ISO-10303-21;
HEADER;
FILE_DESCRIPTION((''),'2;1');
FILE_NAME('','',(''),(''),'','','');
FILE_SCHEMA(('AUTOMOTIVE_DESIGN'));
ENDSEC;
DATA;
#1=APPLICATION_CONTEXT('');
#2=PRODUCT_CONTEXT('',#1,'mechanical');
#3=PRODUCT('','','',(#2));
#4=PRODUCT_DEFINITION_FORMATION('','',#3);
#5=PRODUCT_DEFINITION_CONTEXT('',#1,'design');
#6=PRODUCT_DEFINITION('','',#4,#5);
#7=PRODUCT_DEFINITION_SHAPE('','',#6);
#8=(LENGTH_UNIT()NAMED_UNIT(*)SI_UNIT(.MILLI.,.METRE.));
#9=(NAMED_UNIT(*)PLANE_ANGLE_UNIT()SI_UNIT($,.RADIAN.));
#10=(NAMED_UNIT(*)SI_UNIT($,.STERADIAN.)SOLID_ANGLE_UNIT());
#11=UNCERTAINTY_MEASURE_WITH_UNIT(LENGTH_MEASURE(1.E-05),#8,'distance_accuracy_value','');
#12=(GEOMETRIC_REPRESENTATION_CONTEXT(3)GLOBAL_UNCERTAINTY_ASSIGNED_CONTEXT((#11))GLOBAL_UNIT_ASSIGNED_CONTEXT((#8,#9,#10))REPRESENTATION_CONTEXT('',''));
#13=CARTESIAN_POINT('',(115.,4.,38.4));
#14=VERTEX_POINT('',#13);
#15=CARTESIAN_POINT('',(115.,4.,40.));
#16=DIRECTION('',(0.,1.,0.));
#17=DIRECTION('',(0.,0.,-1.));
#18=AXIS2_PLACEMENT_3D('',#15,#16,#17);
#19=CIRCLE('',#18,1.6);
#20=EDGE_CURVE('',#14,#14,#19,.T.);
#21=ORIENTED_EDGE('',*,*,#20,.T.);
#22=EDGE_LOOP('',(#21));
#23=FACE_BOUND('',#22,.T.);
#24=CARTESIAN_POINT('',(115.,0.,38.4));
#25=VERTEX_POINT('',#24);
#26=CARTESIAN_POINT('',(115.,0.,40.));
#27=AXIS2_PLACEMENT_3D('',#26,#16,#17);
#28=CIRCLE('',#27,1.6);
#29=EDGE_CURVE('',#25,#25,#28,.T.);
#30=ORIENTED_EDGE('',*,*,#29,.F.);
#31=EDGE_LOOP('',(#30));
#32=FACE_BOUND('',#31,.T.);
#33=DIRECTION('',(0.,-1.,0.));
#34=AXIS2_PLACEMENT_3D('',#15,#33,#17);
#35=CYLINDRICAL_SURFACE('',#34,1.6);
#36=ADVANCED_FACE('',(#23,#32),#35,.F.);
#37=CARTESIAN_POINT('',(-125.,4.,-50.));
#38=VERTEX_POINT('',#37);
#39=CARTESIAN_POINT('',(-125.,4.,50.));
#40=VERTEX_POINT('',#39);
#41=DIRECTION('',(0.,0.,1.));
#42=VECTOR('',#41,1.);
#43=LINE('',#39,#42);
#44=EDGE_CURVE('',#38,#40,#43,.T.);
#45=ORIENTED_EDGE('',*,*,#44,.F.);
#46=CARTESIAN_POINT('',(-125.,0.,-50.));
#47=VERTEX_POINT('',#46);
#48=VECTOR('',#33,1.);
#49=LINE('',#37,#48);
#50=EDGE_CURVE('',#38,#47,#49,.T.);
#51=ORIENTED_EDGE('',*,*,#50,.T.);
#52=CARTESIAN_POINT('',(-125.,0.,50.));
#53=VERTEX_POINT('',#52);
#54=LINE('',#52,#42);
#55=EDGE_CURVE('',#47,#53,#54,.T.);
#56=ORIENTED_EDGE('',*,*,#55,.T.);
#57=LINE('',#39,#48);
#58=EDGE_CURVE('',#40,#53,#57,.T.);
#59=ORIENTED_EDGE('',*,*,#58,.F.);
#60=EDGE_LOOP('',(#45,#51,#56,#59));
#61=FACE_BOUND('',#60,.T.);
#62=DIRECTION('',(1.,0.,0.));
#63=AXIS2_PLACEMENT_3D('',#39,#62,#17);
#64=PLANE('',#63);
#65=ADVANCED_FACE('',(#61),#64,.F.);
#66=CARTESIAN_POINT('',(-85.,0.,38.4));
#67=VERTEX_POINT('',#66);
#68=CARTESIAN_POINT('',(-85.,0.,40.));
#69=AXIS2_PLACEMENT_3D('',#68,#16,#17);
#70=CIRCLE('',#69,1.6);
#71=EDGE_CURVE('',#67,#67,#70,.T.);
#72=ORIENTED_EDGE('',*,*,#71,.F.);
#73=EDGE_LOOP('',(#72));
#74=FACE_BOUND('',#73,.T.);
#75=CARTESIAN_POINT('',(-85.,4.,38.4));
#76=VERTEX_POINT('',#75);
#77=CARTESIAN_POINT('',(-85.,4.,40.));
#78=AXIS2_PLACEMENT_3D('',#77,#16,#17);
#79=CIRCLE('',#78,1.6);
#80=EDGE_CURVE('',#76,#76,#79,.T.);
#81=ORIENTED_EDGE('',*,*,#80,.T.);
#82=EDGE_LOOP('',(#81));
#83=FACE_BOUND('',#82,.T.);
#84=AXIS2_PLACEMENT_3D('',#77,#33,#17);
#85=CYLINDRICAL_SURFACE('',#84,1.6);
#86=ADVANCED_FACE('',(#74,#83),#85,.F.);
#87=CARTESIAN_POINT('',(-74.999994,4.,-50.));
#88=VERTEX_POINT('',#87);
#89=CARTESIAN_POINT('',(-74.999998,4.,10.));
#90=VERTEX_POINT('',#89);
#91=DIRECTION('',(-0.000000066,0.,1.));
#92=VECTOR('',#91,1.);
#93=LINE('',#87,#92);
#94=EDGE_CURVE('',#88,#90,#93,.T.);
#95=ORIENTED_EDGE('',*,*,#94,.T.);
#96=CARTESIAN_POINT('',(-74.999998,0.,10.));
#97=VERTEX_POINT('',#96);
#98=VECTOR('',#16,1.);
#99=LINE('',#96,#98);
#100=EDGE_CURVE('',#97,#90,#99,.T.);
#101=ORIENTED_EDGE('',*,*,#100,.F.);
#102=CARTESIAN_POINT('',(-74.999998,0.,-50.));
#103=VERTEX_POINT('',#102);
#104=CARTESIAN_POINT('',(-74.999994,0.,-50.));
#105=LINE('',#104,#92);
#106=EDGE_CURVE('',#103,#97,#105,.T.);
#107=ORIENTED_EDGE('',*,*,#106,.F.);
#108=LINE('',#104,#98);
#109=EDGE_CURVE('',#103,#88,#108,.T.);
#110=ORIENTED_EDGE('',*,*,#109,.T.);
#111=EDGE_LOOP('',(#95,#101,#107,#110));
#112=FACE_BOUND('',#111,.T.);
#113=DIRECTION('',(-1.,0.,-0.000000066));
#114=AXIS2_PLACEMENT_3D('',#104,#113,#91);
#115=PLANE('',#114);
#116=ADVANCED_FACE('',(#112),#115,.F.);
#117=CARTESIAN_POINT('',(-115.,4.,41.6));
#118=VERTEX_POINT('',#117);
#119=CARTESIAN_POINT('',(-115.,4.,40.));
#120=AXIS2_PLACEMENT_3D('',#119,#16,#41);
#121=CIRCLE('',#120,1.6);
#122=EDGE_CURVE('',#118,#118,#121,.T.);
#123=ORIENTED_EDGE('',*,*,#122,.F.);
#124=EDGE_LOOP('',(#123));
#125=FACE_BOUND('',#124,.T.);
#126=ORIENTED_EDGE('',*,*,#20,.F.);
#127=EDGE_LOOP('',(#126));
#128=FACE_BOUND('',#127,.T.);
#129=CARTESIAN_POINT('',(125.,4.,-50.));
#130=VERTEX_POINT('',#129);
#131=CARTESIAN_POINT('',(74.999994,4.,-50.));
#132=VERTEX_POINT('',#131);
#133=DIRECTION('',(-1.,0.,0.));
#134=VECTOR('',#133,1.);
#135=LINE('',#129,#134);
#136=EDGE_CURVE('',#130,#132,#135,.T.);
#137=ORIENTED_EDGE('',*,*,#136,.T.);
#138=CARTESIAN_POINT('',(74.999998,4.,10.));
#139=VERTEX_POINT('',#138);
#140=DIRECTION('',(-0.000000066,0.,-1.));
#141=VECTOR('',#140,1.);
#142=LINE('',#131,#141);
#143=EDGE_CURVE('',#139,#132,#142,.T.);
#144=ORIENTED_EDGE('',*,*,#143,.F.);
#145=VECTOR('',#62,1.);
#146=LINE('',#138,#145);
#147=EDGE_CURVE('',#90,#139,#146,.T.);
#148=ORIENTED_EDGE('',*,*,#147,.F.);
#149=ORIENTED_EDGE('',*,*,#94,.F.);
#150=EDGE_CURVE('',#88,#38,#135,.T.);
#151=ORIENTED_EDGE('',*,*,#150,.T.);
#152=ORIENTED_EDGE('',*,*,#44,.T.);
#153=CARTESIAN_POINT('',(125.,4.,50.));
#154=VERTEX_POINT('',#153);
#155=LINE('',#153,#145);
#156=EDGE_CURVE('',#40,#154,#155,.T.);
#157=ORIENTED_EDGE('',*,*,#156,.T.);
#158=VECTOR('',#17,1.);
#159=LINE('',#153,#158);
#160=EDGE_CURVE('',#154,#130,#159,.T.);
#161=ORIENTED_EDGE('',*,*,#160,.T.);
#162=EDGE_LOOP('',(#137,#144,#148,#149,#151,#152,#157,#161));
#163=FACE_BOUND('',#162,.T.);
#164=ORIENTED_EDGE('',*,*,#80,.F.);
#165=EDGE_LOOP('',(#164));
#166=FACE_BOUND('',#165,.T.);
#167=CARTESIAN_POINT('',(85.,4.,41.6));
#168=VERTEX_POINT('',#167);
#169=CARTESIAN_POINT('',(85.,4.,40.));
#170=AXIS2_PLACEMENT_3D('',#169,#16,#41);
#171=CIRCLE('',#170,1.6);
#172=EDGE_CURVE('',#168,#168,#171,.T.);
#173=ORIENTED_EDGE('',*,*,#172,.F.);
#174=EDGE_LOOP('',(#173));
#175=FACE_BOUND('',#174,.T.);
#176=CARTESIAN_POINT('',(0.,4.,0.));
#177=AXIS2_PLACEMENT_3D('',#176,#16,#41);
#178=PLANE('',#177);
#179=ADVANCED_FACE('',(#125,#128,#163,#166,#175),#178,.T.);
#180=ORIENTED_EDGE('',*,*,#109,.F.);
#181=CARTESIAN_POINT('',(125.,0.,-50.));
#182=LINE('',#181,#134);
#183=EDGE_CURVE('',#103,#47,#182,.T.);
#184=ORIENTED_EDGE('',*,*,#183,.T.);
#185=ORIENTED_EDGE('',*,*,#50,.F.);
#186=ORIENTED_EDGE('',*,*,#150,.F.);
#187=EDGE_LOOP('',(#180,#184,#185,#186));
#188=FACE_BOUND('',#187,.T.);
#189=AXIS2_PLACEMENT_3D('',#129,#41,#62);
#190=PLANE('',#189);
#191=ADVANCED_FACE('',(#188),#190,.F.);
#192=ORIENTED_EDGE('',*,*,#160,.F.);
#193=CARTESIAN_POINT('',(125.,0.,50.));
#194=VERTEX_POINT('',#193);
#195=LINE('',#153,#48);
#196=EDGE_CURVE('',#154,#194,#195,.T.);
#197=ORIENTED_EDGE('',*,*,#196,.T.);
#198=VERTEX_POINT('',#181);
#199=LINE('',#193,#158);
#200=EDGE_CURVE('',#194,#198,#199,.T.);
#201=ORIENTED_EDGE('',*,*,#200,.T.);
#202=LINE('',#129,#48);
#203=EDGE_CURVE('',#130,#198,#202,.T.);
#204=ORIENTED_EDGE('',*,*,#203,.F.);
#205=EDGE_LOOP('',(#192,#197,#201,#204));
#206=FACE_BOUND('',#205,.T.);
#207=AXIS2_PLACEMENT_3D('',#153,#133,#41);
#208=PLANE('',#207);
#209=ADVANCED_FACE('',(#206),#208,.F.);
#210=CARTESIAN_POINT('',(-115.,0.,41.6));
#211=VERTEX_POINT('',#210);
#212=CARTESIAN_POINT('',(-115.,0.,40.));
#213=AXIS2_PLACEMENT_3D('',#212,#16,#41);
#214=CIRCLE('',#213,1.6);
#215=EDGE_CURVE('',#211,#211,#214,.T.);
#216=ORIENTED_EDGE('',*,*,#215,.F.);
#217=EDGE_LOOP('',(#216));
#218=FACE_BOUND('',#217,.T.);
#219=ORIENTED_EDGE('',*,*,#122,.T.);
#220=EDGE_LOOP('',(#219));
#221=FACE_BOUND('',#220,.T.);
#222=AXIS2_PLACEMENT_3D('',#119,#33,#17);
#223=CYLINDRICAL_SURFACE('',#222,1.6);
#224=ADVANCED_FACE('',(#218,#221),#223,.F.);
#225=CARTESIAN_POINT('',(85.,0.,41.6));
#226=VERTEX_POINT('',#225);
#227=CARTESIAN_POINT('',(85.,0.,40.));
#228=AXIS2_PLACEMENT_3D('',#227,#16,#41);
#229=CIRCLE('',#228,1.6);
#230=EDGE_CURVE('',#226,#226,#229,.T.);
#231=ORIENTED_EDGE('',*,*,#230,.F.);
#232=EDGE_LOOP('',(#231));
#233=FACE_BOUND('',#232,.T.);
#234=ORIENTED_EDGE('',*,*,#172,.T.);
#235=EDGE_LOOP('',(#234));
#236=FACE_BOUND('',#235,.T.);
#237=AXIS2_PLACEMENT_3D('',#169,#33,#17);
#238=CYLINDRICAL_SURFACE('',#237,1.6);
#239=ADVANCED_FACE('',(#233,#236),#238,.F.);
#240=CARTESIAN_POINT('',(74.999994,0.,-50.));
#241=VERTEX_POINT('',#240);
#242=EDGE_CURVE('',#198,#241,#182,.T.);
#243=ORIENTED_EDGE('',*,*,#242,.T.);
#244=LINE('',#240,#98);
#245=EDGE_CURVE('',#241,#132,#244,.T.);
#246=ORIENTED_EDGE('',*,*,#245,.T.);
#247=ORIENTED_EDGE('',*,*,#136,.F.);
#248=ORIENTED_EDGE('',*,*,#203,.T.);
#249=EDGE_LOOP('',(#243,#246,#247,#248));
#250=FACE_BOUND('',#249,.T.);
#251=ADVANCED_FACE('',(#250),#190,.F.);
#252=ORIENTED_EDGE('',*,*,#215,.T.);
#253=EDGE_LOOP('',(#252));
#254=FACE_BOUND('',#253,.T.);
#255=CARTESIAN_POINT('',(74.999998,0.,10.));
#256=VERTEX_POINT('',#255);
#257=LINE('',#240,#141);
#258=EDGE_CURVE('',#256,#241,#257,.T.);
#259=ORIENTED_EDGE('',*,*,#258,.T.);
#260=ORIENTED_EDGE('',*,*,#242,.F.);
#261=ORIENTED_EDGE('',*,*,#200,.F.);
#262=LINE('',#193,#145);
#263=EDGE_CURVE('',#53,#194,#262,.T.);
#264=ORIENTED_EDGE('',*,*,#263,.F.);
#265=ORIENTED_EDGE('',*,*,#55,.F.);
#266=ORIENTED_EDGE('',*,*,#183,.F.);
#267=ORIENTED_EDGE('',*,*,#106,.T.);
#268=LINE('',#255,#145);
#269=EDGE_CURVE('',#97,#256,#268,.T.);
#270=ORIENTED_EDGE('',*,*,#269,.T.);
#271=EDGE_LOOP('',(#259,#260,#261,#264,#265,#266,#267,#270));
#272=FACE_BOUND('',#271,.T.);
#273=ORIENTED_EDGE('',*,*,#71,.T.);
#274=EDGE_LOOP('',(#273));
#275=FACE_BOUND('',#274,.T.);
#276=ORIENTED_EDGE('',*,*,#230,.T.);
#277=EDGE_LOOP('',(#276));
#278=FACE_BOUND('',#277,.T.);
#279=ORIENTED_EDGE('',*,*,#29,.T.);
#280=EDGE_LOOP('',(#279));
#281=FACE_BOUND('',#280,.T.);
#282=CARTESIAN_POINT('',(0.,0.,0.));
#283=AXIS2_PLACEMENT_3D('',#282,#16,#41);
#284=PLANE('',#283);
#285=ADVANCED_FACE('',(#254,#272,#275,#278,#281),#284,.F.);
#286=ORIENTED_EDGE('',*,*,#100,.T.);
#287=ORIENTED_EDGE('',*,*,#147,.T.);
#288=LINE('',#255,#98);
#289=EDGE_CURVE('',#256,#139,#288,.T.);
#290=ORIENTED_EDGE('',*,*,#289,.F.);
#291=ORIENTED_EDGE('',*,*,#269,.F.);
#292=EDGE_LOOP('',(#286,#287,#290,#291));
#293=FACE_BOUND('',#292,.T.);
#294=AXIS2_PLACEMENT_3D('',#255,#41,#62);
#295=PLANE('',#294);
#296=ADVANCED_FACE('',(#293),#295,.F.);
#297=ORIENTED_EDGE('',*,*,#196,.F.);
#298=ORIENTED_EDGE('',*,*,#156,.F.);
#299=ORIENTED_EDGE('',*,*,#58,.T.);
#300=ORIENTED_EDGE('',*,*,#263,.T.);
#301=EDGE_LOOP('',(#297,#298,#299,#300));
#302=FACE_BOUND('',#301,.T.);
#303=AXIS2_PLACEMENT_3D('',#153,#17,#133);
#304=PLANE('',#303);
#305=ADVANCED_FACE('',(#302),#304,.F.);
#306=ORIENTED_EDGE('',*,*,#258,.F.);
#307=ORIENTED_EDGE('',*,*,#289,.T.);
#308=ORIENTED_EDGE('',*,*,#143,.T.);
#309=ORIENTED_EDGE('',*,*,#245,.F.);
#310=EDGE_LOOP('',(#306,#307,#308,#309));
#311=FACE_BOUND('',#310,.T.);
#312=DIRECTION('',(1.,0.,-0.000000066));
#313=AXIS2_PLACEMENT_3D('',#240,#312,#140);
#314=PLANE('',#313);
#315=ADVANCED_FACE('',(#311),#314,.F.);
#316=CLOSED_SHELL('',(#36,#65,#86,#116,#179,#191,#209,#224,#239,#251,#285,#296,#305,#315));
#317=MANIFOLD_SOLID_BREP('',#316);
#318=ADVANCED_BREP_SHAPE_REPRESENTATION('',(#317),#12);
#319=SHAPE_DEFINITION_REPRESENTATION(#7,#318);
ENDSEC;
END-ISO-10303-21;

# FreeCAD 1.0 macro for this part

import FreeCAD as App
import Part
import Sketcher
Q = App.Units.Quantity


def add_polygon(sketch, points):
    """Adds a closed chain of lines whose ends are joined by coincident constraints."""
    first, n = sketch.GeometryCount, len(points)
    for a, b in zip(points, points[1:] + points[:1]):
        sketch.addGeometry(Part.LineSegment(App.Vector(*a, 0), App.Vector(*b, 0)), False)
    for i in range(n):
        sketch.addConstraint(Sketcher.Constraint("Coincident", first + i, 2, first + (i + 1) % n, 1))

doc = App.newDocument("Part")
body = doc.addObject("PartDesign::Body", "Body")

# Sketch on XZ plane
sketch1 = body.newObject("Sketcher::SketchObject", "Sketch")
sketch1.AttachmentSupport = (doc.getObject("XZ_Plane"), [""])
sketch1.MapMode = "FlatFace"
add_polygon(sketch1, [(-125, -50), (-125, 50), (125, 50), (125, -50)])  # lines 0-3
sketch1.addGeometry(Part.Circle(App.Vector(-115, 40, 0), App.Vector(0, 0, 1), 1.6), False)  # 4
sketch1.addGeometry(Part.Circle(App.Vector(-85, 40, 0), App.Vector(0, 0, 1), 1.6), False)  # 5
sketch1.addGeometry(Part.Circle(App.Vector(85, 40, 0), App.Vector(0, 0, 1), 1.6), False)  # 6
sketch1.addGeometry(Part.Circle(App.Vector(115, 40, 0), App.Vector(0, 0, 1), 1.6), False)  # 7
sketch1.addConstraint([
    Sketcher.Constraint("Vertical", 0),
    Sketcher.Constraint("Horizontal", 1),
    Sketcher.Constraint("Vertical", 2),
    Sketcher.Constraint("Horizontal", 3),
    Sketcher.Constraint("Equal", 4, 5),
    Sketcher.Constraint("Equal", 5, 6),
    Sketcher.Constraint("Equal", 6, 7),
    Sketcher.Constraint("Symmetric", 0, 2, 2, 2, -1, 1),
    Sketcher.Constraint("Symmetric", 5, 3, 6, 3, -2),
    Sketcher.Constraint("Symmetric", 4, 3, 7, 3, -2),
    Sketcher.Constraint("Horizontal", 4, 3, 5, 3),
    Sketcher.Constraint("Diameter", 4, 3.2),
    Sketcher.Constraint("DistanceX", 1, 1, 1, 2, 250.0),
    Sketcher.Constraint("DistanceY", 0, 1, 0, 2, 100.0),
    Sketcher.Constraint("DistanceX", 4, 3, -1, 1, 115.0),
    Sketcher.Constraint("DistanceY", -1, 1, 4, 3, 40.0),
    Sketcher.Constraint("DistanceX", 5, 3, -1, 1, 85.0),
])
pad1 = body.newObject("PartDesign::Pad", "Pad")
pad1.Profile = sketch1
pad1.Length = 4
pad1.Reversed = True

# Sketch on XZ plane
sketch2 = body.newObject("Sketcher::SketchObject", "Sketch001")
sketch2.AttachmentSupport = (doc.getObject("XZ_Plane"), [""])
sketch2.MapMode = "FlatFace"
sketch2.AttachmentOffset = App.Placement(App.Vector(0, 0, -4), App.Rotation())
add_polygon(sketch2, [(74.999998, 10), (74.999994, -50), (-74.999994, -50), (-74.999998, 10)])  # lines 0-3
sketch2.addConstraint([
    Sketcher.Constraint("Horizontal", 1),
    Sketcher.Constraint("Horizontal", 3),
    Sketcher.Constraint("Parallel", 0, 2),
    Sketcher.Constraint("Angle", 0, Q("-90.000004 deg")),
    Sketcher.Constraint("Distance", 0, 60.0),
    Sketcher.Constraint("DistanceY", 0, 2, -1, 1, 50.0),
    Sketcher.Constraint("DistanceX", 2, 2, -1, 1, 74.999998),
    Sketcher.Constraint("DistanceX", -1, 1, 3, 2, 74.999998),
])
pocket1 = body.newObject("PartDesign::Pocket", "Pocket")
pocket1.Profile = sketch2
pocket1.Type = "ThroughAll"
pocket1.Reversed = True

doc.recompute()
